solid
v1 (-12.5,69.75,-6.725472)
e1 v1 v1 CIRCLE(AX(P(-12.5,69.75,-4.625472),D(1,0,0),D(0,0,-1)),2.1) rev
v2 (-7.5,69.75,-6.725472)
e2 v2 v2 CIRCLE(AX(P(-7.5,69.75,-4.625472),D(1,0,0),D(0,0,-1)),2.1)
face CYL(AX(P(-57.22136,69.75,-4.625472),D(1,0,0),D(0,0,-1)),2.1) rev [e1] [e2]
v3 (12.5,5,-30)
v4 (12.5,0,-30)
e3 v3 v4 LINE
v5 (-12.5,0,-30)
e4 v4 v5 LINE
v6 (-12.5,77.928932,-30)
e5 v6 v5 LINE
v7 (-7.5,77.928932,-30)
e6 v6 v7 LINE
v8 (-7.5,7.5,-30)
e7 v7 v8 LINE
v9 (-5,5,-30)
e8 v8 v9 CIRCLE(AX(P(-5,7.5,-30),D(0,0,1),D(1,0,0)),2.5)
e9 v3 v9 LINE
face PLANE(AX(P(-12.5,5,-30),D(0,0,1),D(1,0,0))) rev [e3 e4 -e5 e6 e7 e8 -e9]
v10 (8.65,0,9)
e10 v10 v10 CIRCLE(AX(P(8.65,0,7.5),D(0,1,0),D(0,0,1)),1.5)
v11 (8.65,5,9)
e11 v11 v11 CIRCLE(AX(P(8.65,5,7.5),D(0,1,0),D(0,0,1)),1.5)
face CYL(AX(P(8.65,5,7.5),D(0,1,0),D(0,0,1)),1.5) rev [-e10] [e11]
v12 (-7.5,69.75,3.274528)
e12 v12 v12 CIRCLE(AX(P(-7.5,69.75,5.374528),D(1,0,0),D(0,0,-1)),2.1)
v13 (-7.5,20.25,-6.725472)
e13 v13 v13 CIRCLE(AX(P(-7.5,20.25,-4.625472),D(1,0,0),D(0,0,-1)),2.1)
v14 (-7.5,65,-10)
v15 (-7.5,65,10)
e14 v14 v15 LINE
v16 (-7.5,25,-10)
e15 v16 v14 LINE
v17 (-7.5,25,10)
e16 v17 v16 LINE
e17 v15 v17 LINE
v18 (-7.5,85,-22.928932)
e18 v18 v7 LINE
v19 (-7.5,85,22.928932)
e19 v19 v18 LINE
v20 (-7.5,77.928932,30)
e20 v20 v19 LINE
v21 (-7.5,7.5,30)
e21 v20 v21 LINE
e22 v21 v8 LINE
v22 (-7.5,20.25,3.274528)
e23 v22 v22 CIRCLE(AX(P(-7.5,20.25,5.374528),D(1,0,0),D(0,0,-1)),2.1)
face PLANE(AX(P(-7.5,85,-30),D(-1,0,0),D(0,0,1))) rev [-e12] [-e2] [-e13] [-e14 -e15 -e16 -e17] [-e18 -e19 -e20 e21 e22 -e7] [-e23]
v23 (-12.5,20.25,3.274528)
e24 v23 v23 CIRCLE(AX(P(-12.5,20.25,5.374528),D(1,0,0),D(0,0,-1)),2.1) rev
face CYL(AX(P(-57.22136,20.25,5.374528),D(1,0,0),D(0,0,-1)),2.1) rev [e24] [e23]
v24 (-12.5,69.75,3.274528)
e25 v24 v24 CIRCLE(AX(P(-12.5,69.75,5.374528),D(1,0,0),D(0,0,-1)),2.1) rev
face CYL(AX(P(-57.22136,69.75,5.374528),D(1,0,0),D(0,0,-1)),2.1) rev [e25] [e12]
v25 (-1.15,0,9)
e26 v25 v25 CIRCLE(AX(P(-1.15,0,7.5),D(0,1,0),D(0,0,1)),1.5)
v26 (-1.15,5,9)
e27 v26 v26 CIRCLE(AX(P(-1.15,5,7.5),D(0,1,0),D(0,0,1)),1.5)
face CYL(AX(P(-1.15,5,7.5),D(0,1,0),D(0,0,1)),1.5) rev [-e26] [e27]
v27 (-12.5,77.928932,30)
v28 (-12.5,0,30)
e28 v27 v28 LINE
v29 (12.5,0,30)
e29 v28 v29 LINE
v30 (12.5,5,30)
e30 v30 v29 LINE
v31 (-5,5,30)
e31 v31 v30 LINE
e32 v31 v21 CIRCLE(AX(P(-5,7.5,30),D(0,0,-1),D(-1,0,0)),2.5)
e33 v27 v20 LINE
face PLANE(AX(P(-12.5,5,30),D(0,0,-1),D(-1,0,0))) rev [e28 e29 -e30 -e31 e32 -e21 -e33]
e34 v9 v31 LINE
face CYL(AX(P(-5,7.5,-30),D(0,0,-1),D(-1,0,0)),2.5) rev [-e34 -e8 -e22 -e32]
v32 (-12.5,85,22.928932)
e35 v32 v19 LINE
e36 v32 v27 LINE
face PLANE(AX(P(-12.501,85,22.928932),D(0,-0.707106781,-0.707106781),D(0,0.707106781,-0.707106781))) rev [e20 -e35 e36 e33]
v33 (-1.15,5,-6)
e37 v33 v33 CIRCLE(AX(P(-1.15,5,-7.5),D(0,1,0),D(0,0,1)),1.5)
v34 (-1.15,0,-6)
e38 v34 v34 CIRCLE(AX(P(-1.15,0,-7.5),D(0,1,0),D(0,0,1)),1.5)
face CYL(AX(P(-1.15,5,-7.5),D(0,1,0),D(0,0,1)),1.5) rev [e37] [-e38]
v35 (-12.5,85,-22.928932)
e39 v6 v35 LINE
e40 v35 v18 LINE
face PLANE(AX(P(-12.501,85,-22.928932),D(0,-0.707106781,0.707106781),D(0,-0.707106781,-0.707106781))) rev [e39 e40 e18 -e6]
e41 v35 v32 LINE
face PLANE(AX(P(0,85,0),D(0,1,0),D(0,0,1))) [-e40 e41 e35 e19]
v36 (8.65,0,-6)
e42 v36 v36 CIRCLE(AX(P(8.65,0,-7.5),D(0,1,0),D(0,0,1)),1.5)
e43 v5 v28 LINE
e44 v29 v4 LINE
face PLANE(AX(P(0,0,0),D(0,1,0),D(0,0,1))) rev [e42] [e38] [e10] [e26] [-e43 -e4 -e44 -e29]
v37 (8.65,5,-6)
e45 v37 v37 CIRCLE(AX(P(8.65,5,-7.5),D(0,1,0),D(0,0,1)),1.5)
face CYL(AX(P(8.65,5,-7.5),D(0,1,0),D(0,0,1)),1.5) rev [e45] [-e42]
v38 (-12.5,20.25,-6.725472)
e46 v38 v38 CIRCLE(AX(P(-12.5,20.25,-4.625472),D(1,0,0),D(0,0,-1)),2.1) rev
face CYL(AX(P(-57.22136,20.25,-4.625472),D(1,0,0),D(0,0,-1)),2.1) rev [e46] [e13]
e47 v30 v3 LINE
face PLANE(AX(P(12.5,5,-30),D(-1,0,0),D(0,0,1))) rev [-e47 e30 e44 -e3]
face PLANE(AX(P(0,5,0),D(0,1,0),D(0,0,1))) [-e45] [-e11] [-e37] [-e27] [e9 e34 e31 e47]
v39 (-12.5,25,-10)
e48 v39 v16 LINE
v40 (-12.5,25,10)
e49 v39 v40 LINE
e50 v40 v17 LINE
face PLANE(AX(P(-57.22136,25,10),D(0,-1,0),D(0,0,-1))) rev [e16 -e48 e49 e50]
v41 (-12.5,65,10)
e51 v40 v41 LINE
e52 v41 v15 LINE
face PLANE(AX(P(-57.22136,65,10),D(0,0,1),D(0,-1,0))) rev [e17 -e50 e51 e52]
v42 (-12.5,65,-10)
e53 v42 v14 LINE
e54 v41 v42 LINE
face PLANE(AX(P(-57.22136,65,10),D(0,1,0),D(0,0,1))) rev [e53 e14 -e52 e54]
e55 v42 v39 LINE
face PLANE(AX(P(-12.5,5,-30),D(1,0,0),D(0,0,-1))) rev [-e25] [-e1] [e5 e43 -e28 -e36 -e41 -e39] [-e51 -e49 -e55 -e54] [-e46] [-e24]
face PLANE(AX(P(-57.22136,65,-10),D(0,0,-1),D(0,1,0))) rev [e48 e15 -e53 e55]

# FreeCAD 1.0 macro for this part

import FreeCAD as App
import Part
import Sketcher
Q = App.Units.Quantity


def edges_at(feature, points):
    """Names of the edges that pass closest to the given points."""
    edges = feature.Shape.Edges
    near = lambda p: min(range(len(edges)), key=lambda i: edges[i].distToShape(Part.Vertex(*p))[0])
    return sorted({f"Edge{near(p) + 1}" for p in points})

doc = App.newDocument("Part")
body = doc.addObject("PartDesign::Body", "Body")

# Sketch on XZ plane
sketch1 = body.newObject("Sketcher::SketchObject", "Sketch")
sketch1.AttachmentSupport = (doc.getObject("XZ_Plane"), [""])
sketch1.MapMode = "FlatFace"
sketch1.addGeometry([
    Part.LineSegment(App.Vector(-12.5, -30, 0), App.Vector(-12.5, 30, 0)),
    Part.LineSegment(App.Vector(-12.5, 30, 0), App.Vector(12.5, 30, 0)),
    Part.LineSegment(App.Vector(12.5, 30, 0), App.Vector(12.5, -30, 0)),
    Part.LineSegment(App.Vector(12.5, -30, 0), App.Vector(-12.5, -30, 0)),
], False)
sketch1.addConstraint([
    Sketcher.Constraint("Coincident", 0, 2, 1, 1),
    Sketcher.Constraint("Coincident", 1, 2, 2, 1),
    Sketcher.Constraint("Coincident", 2, 2, 3, 1),
    Sketcher.Constraint("Coincident", 3, 2, 0, 1),
    Sketcher.Constraint("Vertical", 0),
    Sketcher.Constraint("Horizontal", 1),
    Sketcher.Constraint("Vertical", 2),
    Sketcher.Constraint("Horizontal", 3),
    Sketcher.Constraint("Symmetric", 0, 2, 2, 2, -1, 1),
    Sketcher.Constraint("DistanceX", 1, 1, 1, 2, Q("25 mm")),
    Sketcher.Constraint("DistanceY", 0, 1, 0, 2, Q("60 mm")),
])
pad1 = body.newObject("PartDesign::Pad", "Pad")
pad1.Profile = sketch1
pad1.Length = 5
pad1.Reversed = True

# Sketch on XZ plane
sketch2 = body.newObject("Sketcher::SketchObject", "Sketch001")
sketch2.AttachmentSupport = (doc.getObject("XZ_Plane"), [""])
sketch2.MapMode = "FlatFace"
sketch2.AttachmentOffset = App.Placement(App.Vector(0, 0, -5), App.Rotation())
sketch2.addGeometry([
    Part.LineSegment(App.Vector(-12.5, -30, 0), App.Vector(-12.5, 30, 0)),
    Part.LineSegment(App.Vector(-12.5, 30, 0), App.Vector(-7.5, 30, 0)),
    Part.LineSegment(App.Vector(-7.5, 30, 0), App.Vector(-7.5, -30, 0)),
    Part.LineSegment(App.Vector(-7.5, -30, 0), App.Vector(-12.5, -30, 0)),
], False)
sketch2.addConstraint([
    Sketcher.Constraint("Coincident", 0, 2, 1, 1),
    Sketcher.Constraint("Coincident", 1, 2, 2, 1),
    Sketcher.Constraint("Coincident", 2, 2, 3, 1),
    Sketcher.Constraint("Coincident", 3, 2, 0, 1),
    Sketcher.Constraint("Vertical", 0),
    Sketcher.Constraint("Horizontal", 1),
    Sketcher.Constraint("Vertical", 2),
    Sketcher.Constraint("Horizontal", 3),
    Sketcher.Constraint("DistanceX", 1, 1, 1, 2, Q("5 mm")),
    Sketcher.Constraint("DistanceY", 0, 1, 0, 2, Q("60 mm")),
    Sketcher.Constraint("DistanceY", -1, 1, 0, 2, Q("30 mm")),
    Sketcher.Constraint("DistanceX", 0, 2, -1, 1, Q("12.5 mm")),
])
pad2 = body.newObject("PartDesign::Pad", "Pad001")
pad2.Profile = sketch2
pad2.Length = 80
pad2.Reversed = True

# Sketch on YZ plane
sketch3 = body.newObject("Sketcher::SketchObject", "Sketch002")
sketch3.AttachmentSupport = (doc.getObject("YZ_Plane"), [""])
sketch3.MapMode = "FlatFace"
sketch3.AttachmentOffset = App.Placement(App.Vector(0, 0, -7.5), App.Rotation())
sketch3.addGeometry([
    Part.Circle(App.Vector(69.75, 5.374528, 0), App.Vector(0, 0, 1), 2.1),  # 0
    Part.Circle(App.Vector(69.75, -4.625472, 0), App.Vector(0, 0, 1), 2.1),  # 1
    Part.Circle(App.Vector(20.25, 5.374528, 0), App.Vector(0, 0, 1), 2.1),  # 2
    Part.Circle(App.Vector(20.25, -4.625472, 0), App.Vector(0, 0, 1), 2.1),  # 3
    Part.LineSegment(App.Vector(65, 10, 0), App.Vector(25, 10, 0)),  # 4
    Part.LineSegment(App.Vector(25, 10, 0), App.Vector(25, -10, 0)),  # 5
    Part.LineSegment(App.Vector(25, -10, 0), App.Vector(65, -10, 0)),  # 6
    Part.LineSegment(App.Vector(65, -10, 0), App.Vector(65, 10, 0)),  # 7
], False)
sketch3.addConstraint([
    Sketcher.Constraint("Coincident", 4, 2, 5, 1),
    Sketcher.Constraint("Coincident", 5, 2, 6, 1),
    Sketcher.Constraint("Coincident", 6, 2, 7, 1),
    Sketcher.Constraint("Coincident", 7, 2, 4, 1),
    Sketcher.Constraint("Horizontal", 4),
    Sketcher.Constraint("Vertical", 5),
    Sketcher.Constraint("Horizontal", 6),
    Sketcher.Constraint("Vertical", 7),
    Sketcher.Constraint("Equal", 0, 1),
    Sketcher.Constraint("Equal", 1, 2),
    Sketcher.Constraint("Equal", 2, 3),
    Sketcher.Constraint("Horizontal", 0, 3, 2, 3),
    Sketcher.Constraint("Horizontal", 1, 3, 3, 3),
    Sketcher.Constraint("Vertical", 0, 3, 1, 3),
    Sketcher.Constraint("Vertical", 2, 3, 3, 3),
    Sketcher.Constraint("Diameter", 0, Q("4.2 mm")),
    Sketcher.Constraint("DistanceX", 4, 2, 4, 1, Q("40 mm")),
    Sketcher.Constraint("DistanceY", 5, 2, 5, 1, Q("20 mm")),
    Sketcher.Constraint("DistanceX", -1, 1, 4, 2, Q("25 mm")),
    Sketcher.Constraint("DistanceY", -1, 1, 4, 2, Q("10 mm")),
    Sketcher.Constraint("DistanceY", 1, 3, 0, 3, Q("10 mm")),
    Sketcher.Constraint("DistanceX", 2, 3, 0, 3, Q("49.5 mm")),
    Sketcher.Constraint("DistanceX", -1, 1, 0, 3, Q("69.75 mm")),
    Sketcher.Constraint("DistanceY", -1, 1, 0, 3, Q("5.374528 mm")),
])
pocket1 = body.newObject("PartDesign::Pocket", "Pocket")
pocket1.Profile = sketch3
pocket1.Length = 5

# Sketch on YZ plane
sketch4 = body.newObject("Sketcher::SketchObject", "Sketch003")
sketch4.AttachmentSupport = (doc.getObject("YZ_Plane"), [""])
sketch4.MapMode = "FlatFace"
sketch4.AttachmentOffset = App.Placement(App.Vector(0, 0, -7.5), App.Rotation())
sketch4.addGeometry([
    Part.LineSegment(App.Vector(77.928932, 30, 0), App.Vector(85, 22.928932, 0)),
    Part.LineSegment(App.Vector(85, 22.928932, 0), App.Vector(85, 30, 0)),
    Part.LineSegment(App.Vector(85, 30, 0), App.Vector(77.928932, 30, 0)),
], False)
sketch4.addConstraint([
    Sketcher.Constraint("Coincident", 0, 2, 1, 1),
    Sketcher.Constraint("Coincident", 1, 2, 2, 1),
    Sketcher.Constraint("Coincident", 2, 2, 0, 1),
    Sketcher.Constraint("Vertical", 1),
    Sketcher.Constraint("Horizontal", 2),
    Sketcher.Constraint("Equal", 2, 1),
    Sketcher.Constraint("Distance", 0, Q("10 mm")),
    Sketcher.Constraint("DistanceX", -1, 1, 0, 2, Q("85 mm")),
    Sketcher.Constraint("DistanceY", -1, 1, 1, 2, Q("30 mm")),
])
pocket2 = body.newObject("PartDesign::Pocket", "Pocket001")
pocket2.Profile = sketch4
pocket2.Type = "UpToFirst"

# Sketch on YZ plane
sketch5 = body.newObject("Sketcher::SketchObject", "Sketch004")
sketch5.AttachmentSupport = (doc.getObject("YZ_Plane"), [""])
sketch5.MapMode = "FlatFace"
sketch5.AttachmentOffset = App.Placement(App.Vector(0, 0, -7.5), App.Rotation())
sketch5.addGeometry([
    Part.LineSegment(App.Vector(85, -22.928932, 0), App.Vector(77.928932, -30, 0)),
    Part.LineSegment(App.Vector(77.928932, -30, 0), App.Vector(85, -30, 0)),
    Part.LineSegment(App.Vector(85, -30, 0), App.Vector(85, -22.928932, 0)),
], False)
sketch5.addConstraint([
    Sketcher.Constraint("Coincident", 0, 2, 1, 1),
    Sketcher.Constraint("Coincident", 1, 2, 2, 1),
    Sketcher.Constraint("Coincident", 2, 2, 0, 1),
    Sketcher.Constraint("Horizontal", 1),
    Sketcher.Constraint("Vertical", 2),
    Sketcher.Constraint("Equal", 1, 2),
    Sketcher.Constraint("Distance", 0, Q("10 mm")),
    Sketcher.Constraint("DistanceY", 0, 2, -1, 1, Q("30 mm")),
    Sketcher.Constraint("DistanceX", -1, 1, 1, 2, Q("85 mm")),
])
pocket3 = body.newObject("PartDesign::Pocket", "Pocket002")
pocket3.Profile = sketch5
pocket3.Type = "UpToFirst"
doc.recompute()

fillet = body.newObject("PartDesign::Fillet", "Fillet")
fillet.Base = (pocket3, edges_at(pocket3, [(-7.5, 5, 0)]))
fillet.Radius = 2.5

# Sketch on XZ plane
sketch6 = body.newObject("Sketcher::SketchObject", "Sketch005")
sketch6.AttachmentSupport = (doc.getObject("XZ_Plane"), [""])
sketch6.MapMode = "FlatFace"
sketch6.AttachmentOffset = App.Placement(App.Vector(0, 0, -5), App.Rotation())
sketch6.addGeometry([
    Part.Circle(App.Vector(-1.15, -7.5, 0), App.Vector(0, 0, 1), 1.5),
    Part.Circle(App.Vector(-1.15, 7.5, 0), App.Vector(0, 0, 1), 1.5),
], False)
sketch6.addConstraint([
    Sketcher.Constraint("Equal", 0, 1),
    Sketcher.Constraint("Symmetric", 0, 3, 1, 3, -1),
    Sketcher.Constraint("Diameter", 0, Q("3 mm")),
    Sketcher.Constraint("DistanceY", 0, 3, 1, 3, Q("15 mm")),
    Sketcher.Constraint("DistanceX", 0, 3, -1, 1, Q("1.15 mm")),
])
doc.recompute()
hole = body.newObject("PartDesign::Hole", "Hole")
hole.Profile = sketch6
hole.ThreadType = "None"
hole.Diameter = 3
hole.DepthType = "ThroughAll"
hole.Reversed = True
doc.recompute()

datumplane = body.newObject("PartDesign::Plane", "DatumPlane")
datumplane.AttachmentSupport = (doc.getObject("YZ_Plane"), [""])
datumplane.MapMode = "FlatFace"
datumplane.AttachmentOffset = App.Placement(App.Vector(0, 0, 3.75), App.Rotation())
mirrored = body.newObject("PartDesign::Mirrored", "Mirrored")
mirrored.Originals = [hole]
mirrored.MirrorPlane = (datumplane, [""])
body.Tip = mirrored

doc.recompute()
